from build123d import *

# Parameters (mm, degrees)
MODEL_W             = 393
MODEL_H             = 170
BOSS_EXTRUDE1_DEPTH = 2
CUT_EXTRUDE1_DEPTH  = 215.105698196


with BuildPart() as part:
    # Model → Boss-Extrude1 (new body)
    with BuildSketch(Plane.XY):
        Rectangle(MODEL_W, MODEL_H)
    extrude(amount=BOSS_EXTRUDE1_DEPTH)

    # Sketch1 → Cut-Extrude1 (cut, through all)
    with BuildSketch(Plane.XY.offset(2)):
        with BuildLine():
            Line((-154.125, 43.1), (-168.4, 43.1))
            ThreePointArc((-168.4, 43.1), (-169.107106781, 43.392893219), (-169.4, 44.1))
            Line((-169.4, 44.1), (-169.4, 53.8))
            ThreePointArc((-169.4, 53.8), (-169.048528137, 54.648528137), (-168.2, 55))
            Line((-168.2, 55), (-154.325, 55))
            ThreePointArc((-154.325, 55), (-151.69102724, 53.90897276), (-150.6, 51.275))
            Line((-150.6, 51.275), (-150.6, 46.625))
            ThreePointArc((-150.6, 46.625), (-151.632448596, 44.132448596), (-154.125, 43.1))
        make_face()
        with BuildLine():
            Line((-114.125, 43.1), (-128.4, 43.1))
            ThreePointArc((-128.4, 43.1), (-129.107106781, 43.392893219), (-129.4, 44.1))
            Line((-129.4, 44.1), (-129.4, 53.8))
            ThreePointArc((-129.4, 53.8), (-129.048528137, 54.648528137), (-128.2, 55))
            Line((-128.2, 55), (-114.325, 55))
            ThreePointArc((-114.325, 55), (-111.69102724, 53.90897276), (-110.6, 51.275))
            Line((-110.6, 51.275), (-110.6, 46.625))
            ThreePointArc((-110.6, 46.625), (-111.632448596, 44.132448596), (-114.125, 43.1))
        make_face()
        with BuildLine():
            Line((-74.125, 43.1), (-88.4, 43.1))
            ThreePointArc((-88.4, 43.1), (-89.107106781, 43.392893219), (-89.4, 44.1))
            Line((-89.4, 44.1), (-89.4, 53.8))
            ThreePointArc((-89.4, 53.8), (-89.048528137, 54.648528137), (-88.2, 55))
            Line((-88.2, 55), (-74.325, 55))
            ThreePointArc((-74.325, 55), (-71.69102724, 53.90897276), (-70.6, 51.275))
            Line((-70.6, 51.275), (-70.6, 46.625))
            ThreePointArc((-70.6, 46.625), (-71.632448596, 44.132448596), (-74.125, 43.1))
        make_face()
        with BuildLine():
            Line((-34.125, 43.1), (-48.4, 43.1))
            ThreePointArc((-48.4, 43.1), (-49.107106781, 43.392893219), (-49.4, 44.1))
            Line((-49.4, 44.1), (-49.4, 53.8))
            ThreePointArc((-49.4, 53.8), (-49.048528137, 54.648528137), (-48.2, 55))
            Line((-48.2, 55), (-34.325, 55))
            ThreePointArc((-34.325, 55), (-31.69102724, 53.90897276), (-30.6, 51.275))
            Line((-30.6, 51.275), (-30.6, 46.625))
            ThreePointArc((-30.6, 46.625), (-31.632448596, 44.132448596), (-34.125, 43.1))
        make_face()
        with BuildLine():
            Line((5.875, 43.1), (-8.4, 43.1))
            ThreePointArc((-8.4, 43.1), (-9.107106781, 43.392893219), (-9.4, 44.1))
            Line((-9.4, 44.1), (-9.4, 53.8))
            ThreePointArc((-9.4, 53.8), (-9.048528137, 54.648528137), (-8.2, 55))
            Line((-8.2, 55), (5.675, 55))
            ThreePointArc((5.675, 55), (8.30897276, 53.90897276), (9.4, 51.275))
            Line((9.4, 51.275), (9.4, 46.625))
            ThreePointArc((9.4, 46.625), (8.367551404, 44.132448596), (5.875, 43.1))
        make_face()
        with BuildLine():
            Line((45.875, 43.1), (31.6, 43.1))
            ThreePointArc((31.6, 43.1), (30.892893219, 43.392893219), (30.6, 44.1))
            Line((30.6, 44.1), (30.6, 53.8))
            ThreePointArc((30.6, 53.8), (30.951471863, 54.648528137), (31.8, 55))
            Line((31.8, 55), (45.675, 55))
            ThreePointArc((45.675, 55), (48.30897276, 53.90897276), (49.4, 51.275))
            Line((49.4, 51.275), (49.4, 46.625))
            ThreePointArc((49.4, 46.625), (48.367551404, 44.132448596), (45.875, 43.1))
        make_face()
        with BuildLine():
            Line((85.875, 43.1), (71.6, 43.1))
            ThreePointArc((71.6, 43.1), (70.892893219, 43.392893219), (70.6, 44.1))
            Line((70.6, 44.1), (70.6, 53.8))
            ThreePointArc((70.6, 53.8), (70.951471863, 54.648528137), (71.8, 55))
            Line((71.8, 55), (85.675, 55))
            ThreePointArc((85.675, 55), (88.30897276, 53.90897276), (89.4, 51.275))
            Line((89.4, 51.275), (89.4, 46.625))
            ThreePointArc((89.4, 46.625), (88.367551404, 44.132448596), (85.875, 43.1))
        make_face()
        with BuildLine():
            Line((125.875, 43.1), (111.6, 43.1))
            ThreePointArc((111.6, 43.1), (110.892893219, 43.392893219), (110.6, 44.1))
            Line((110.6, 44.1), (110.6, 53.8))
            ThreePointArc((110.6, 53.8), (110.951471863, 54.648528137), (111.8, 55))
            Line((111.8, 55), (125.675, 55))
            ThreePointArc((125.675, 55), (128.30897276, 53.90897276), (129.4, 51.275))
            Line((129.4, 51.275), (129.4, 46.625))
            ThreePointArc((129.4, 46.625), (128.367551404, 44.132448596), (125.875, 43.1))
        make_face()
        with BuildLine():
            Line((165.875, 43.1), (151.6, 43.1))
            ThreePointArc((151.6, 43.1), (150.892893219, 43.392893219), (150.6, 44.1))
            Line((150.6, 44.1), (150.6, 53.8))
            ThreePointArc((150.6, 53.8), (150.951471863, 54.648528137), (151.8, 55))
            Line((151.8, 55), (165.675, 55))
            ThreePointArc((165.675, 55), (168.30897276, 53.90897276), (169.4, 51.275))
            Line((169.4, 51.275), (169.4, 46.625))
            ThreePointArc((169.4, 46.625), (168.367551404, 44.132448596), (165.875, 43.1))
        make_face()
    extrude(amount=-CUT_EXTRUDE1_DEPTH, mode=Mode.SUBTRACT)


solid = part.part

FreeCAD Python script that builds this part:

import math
import FreeCAD as App
import Part
import Sketcher

V = App.Vector
Q = App.Units.Quantity

doc = App.newDocument("Part")
body = doc.addObject("PartDesign::Body", "Body")

sketch1 = body.newObject("Sketcher::SketchObject", "Sketch")
sketch1.AttachmentSupport = (doc.getObject("XY_Plane"), [""])
sketch1.MapMode = "FlatFace"
sketch1.addGeometry([
    Part.LineSegment(V(-196.5, 85, 0), V(-196.5, -85, 0)),
    Part.LineSegment(V(-196.5, -85, 0), V(196.5, -85, 0)),
    Part.LineSegment(V(196.5, -85, 0), V(196.5, 85, 0)),
    Part.LineSegment(V(196.5, 85, 0), V(-196.5, 85, 0)),
], False)
sketch1.addConstraint([
    Sketcher.Constraint("Coincident", 0, 2, 1, 1),
    Sketcher.Constraint("Coincident", 1, 2, 2, 1),
    Sketcher.Constraint("Coincident", 2, 2, 3, 1),
    Sketcher.Constraint("Coincident", 3, 2, 0, 1),
    Sketcher.Constraint("Vertical", 0),
    Sketcher.Constraint("Horizontal", 1),
    Sketcher.Constraint("Vertical", 2),
    Sketcher.Constraint("Horizontal", 3),
    Sketcher.Constraint("Symmetric", 0, 2, 2, 2, -1, 1),
    Sketcher.Constraint("DistanceX", 1, 1, 1, 2, Q("393 mm")),
    Sketcher.Constraint("DistanceY", 0, 2, 0, 1, Q("170 mm")),
])
pad1 = body.newObject("PartDesign::Pad", "Pad")
pad1.Profile = sketch1
pad1.Length = 2

sketch2 = body.newObject("Sketcher::SketchObject", "Sketch001")
sketch2.AttachmentSupport = (doc.getObject("XY_Plane"), [""])
sketch2.MapMode = "FlatFace"
sketch2.AttachmentOffset = App.Placement(V(0, 0, 2), App.Rotation())
sketch2.addGeometry([
    Part.LineSegment(V(-168.4, 43.1, 0), V(-154.125, 43.1, 0)),
    Part.ArcOfCircle(Part.Circle(V(-154.125, 46.625, 0), V(0, 0, 1), 3.525), math.radians(-90), math.radians(0)),
    Part.LineSegment(V(-150.6, 46.625, 0), V(-150.6, 51.275, 0)),
    Part.ArcOfCircle(Part.Circle(V(-154.325, 51.275, 0), V(0, 0, 1), 3.725), math.radians(0), math.radians(90)),
    Part.LineSegment(V(-154.325, 55, 0), V(-168.2, 55, 0)),
    Part.ArcOfCircle(Part.Circle(V(-168.2, 53.8, 0), V(0, 0, 1), 1.2), math.radians(90), math.radians(180)),
    Part.LineSegment(V(-169.4, 53.8, 0), V(-169.4, 44.1, 0)),
    Part.ArcOfCircle(Part.Circle(V(-168.4, 44.1, 0), V(0, 0, 1), 1), math.radians(-180), math.radians(-90)),
    Part.LineSegment(V(-128.4, 43.1, 0), V(-114.125, 43.1, 0)),
    Part.ArcOfCircle(Part.Circle(V(-114.125, 46.625, 0), V(0, 0, 1), 3.525), math.radians(-90), math.radians(0)),
    Part.LineSegment(V(-110.6, 46.625, 0), V(-110.6, 51.275, 0)),
    Part.ArcOfCircle(Part.Circle(V(-114.325, 51.275, 0), V(0, 0, 1), 3.725), math.radians(0), math.radians(90)),
    Part.LineSegment(V(-114.325, 55, 0), V(-128.2, 55, 0)),
    Part.ArcOfCircle(Part.Circle(V(-128.2, 53.8, 0), V(0, 0, 1), 1.2), math.radians(90), math.radians(180)),
    Part.LineSegment(V(-129.4, 53.8, 0), V(-129.4, 44.1, 0)),
    Part.ArcOfCircle(Part.Circle(V(-128.4, 44.1, 0), V(0, 0, 1), 1), math.radians(-180), math.radians(-90)),
    Part.LineSegment(V(-88.4, 43.1, 0), V(-74.125, 43.1, 0)),
    Part.ArcOfCircle(Part.Circle(V(-74.125, 46.625, 0), V(0, 0, 1), 3.525), math.radians(-90), math.radians(0)),
    Part.LineSegment(V(-70.6, 46.625, 0), V(-70.6, 51.275, 0)),
    Part.ArcOfCircle(Part.Circle(V(-74.325, 51.275, 0), V(0, 0, 1), 3.725), math.radians(0), math.radians(90)),
    Part.LineSegment(V(-74.325, 55, 0), V(-88.2, 55, 0)),
    Part.ArcOfCircle(Part.Circle(V(-88.2, 53.8, 0), V(0, 0, 1), 1.2), math.radians(90), math.radians(180)),
    Part.LineSegment(V(-89.4, 53.8, 0), V(-89.4, 44.1, 0)),
    Part.ArcOfCircle(Part.Circle(V(-88.4, 44.1, 0), V(0, 0, 1), 1), math.radians(-180), math.radians(-90)),
    Part.LineSegment(V(-48.4, 43.1, 0), V(-34.125, 43.1, 0)),
    Part.ArcOfCircle(Part.Circle(V(-34.125, 46.625, 0), V(0, 0, 1), 3.525), math.radians(-90), math.radians(0)),
    Part.LineSegment(V(-30.6, 46.625, 0), V(-30.6, 51.275, 0)),
    Part.ArcOfCircle(Part.Circle(V(-34.325, 51.275, 0), V(0, 0, 1), 3.725), math.radians(0), math.radians(90)),
    Part.LineSegment(V(-34.325, 55, 0), V(-48.2, 55, 0)),
    Part.ArcOfCircle(Part.Circle(V(-48.2, 53.8, 0), V(0, 0, 1), 1.2), math.radians(90), math.radians(180)),
    Part.LineSegment(V(-49.4, 53.8, 0), V(-49.4, 44.1, 0)),
    Part.ArcOfCircle(Part.Circle(V(-48.4, 44.1, 0), V(0, 0, 1), 1), math.radians(-180), math.radians(-90)),
    Part.LineSegment(V(-8.4, 43.1, 0), V(5.875, 43.1, 0)),
    Part.ArcOfCircle(Part.Circle(V(5.875, 46.625, 0), V(0, 0, 1), 3.525), math.radians(-90), math.radians(0)),
    Part.LineSegment(V(9.4, 46.625, 0), V(9.4, 51.275, 0)),
    Part.ArcOfCircle(Part.Circle(V(5.675, 51.275, 0), V(0, 0, 1), 3.725), math.radians(0), math.radians(90)),
    Part.LineSegment(V(5.675, 55, 0), V(-8.2, 55, 0)),
    Part.ArcOfCircle(Part.Circle(V(-8.2, 53.8, 0), V(0, 0, 1), 1.2), math.radians(90), math.radians(180)),
    Part.LineSegment(V(-9.4, 53.8, 0), V(-9.4, 44.1, 0)),
    Part.ArcOfCircle(Part.Circle(V(-8.4, 44.1, 0), V(0, 0, 1), 1), math.radians(-180), math.radians(-90)),
    Part.LineSegment(V(31.6, 43.1, 0), V(45.875, 43.1, 0)),
    Part.ArcOfCircle(Part.Circle(V(45.875, 46.625, 0), V(0, 0, 1), 3.525), math.radians(-90), math.radians(0)),
    Part.LineSegment(V(49.4, 46.625, 0), V(49.4, 51.275, 0)),
    Part.ArcOfCircle(Part.Circle(V(45.675, 51.275, 0), V(0, 0, 1), 3.725), math.radians(0), math.radians(90)),
    Part.LineSegment(V(45.675, 55, 0), V(31.8, 55, 0)),
    Part.ArcOfCircle(Part.Circle(V(31.8, 53.8, 0), V(0, 0, 1), 1.2), math.radians(90), math.radians(180)),
    Part.LineSegment(V(30.6, 53.8, 0), V(30.6, 44.1, 0)),
    Part.ArcOfCircle(Part.Circle(V(31.6, 44.1, 0), V(0, 0, 1), 1), math.radians(-180), math.radians(-90)),
    Part.LineSegment(V(71.6, 43.1, 0), V(85.875, 43.1, 0)),
    Part.ArcOfCircle(Part.Circle(V(85.875, 46.625, 0), V(0, 0, 1), 3.525), math.radians(-90), math.radians(0)),
    Part.LineSegment(V(89.4, 46.625, 0), V(89.4, 51.275, 0)),
    Part.ArcOfCircle(Part.Circle(V(85.675, 51.275, 0), V(0, 0, 1), 3.725), math.radians(0), math.radians(90)),
    Part.LineSegment(V(85.675, 55, 0), V(71.8, 55, 0)),
    Part.ArcOfCircle(Part.Circle(V(71.8, 53.8, 0), V(0, 0, 1), 1.2), math.radians(90), math.radians(180)),
    Part.LineSegment(V(70.6, 53.8, 0), V(70.6, 44.1, 0)),
    Part.ArcOfCircle(Part.Circle(V(71.6, 44.1, 0), V(0, 0, 1), 1), math.radians(-180), math.radians(-90)),
    Part.LineSegment(V(111.6, 43.1, 0), V(125.875, 43.1, 0)),
    Part.ArcOfCircle(Part.Circle(V(125.875, 46.625, 0), V(0, 0, 1), 3.525), math.radians(-90), math.radians(0)),
    Part.LineSegment(V(129.4, 46.625, 0), V(129.4, 51.275, 0)),
    Part.ArcOfCircle(Part.Circle(V(125.675, 51.275, 0), V(0, 0, 1), 3.725), math.radians(0), math.radians(90)),
    Part.LineSegment(V(125.675, 55, 0), V(111.8, 55, 0)),
    Part.ArcOfCircle(Part.Circle(V(111.8, 53.8, 0), V(0, 0, 1), 1.2), math.radians(90), math.radians(180)),
    Part.LineSegment(V(110.6, 53.8, 0), V(110.6, 44.1, 0)),
    Part.ArcOfCircle(Part.Circle(V(111.6, 44.1, 0), V(0, 0, 1), 1), math.radians(-180), math.radians(-90)),
    Part.LineSegment(V(151.6, 43.1, 0), V(165.875, 43.1, 0)),
    Part.ArcOfCircle(Part.Circle(V(165.875, 46.625, 0), V(0, 0, 1), 3.525), math.radians(-90), math.radians(0)),
    Part.LineSegment(V(169.4, 46.625, 0), V(169.4, 51.275, 0)),
    Part.ArcOfCircle(Part.Circle(V(165.675, 51.275, 0), V(0, 0, 1), 3.725), math.radians(0), math.radians(90)),
    Part.LineSegment(V(165.675, 55, 0), V(151.8, 55, 0)),
    Part.ArcOfCircle(Part.Circle(V(151.8, 53.8, 0), V(0, 0, 1), 1.2), math.radians(90), math.radians(180)),
    Part.LineSegment(V(150.6, 53.8, 0), V(150.6, 44.1, 0)),
    Part.ArcOfCircle(Part.Circle(V(151.6, 44.1, 0), V(0, 0, 1), 1), math.radians(-180), math.radians(-90)),
], False)
sketch2.addConstraint([
    Sketcher.Constraint("Tangent", 0, 2, 1, 1),
    Sketcher.Constraint("Tangent", 1, 2, 2, 1),
    Sketcher.Constraint("Tangent", 2, 2, 3, 1),
    Sketcher.Constraint("Tangent", 3, 2, 4, 1),
    Sketcher.Constraint("Tangent", 4, 2, 5, 1),
    Sketcher.Constraint("Tangent", 5, 2, 6, 1),
    Sketcher.Constraint("Tangent", 6, 2, 7, 1),
    Sketcher.Constraint("Tangent", 7, 2, 0, 1),
    Sketcher.Constraint("Tangent", 8, 2, 9, 1),
    Sketcher.Constraint("Tangent", 9, 2, 10, 1),
    Sketcher.Constraint("Tangent", 10, 2, 11, 1),
    Sketcher.Constraint("Tangent", 11, 2, 12, 1),
    Sketcher.Constraint("Tangent", 12, 2, 13, 1),
    Sketcher.Constraint("Tangent", 13, 2, 14, 1),
    Sketcher.Constraint("Tangent", 14, 2, 15, 1),
    Sketcher.Constraint("Tangent", 15, 2, 8, 1),
    Sketcher.Constraint("Tangent", 16, 2, 17, 1),
    Sketcher.Constraint("Tangent", 17, 2, 18, 1),
    Sketcher.Constraint("Tangent", 18, 2, 19, 1),
    Sketcher.Constraint("Tangent", 19, 2, 20, 1),
    Sketcher.Constraint("Tangent", 20, 2, 21, 1),
    Sketcher.Constraint("Tangent", 21, 2, 22, 1),
    Sketcher.Constraint("Tangent", 22, 2, 23, 1),
    Sketcher.Constraint("Tangent", 23, 2, 16, 1),
    Sketcher.Constraint("Tangent", 24, 2, 25, 1),
    Sketcher.Constraint("Tangent", 25, 2, 26, 1),
    Sketcher.Constraint("Tangent", 26, 2, 27, 1),
    Sketcher.Constraint("Tangent", 27, 2, 28, 1),
    Sketcher.Constraint("Tangent", 28, 2, 29, 1),
    Sketcher.Constraint("Tangent", 29, 2, 30, 1),
    Sketcher.Constraint("Tangent", 30, 2, 31, 1),
    Sketcher.Constraint("Tangent", 31, 2, 24, 1),
    Sketcher.Constraint("Tangent", 32, 2, 33, 1),
    Sketcher.Constraint("Tangent", 33, 2, 34, 1),
    Sketcher.Constraint("Tangent", 34, 2, 35, 1),
    Sketcher.Constraint("Tangent", 35, 2, 36, 1),
    Sketcher.Constraint("Tangent", 36, 2, 37, 1),
    Sketcher.Constraint("Tangent", 37, 2, 38, 1),
    Sketcher.Constraint("Tangent", 38, 2, 39, 1),
    Sketcher.Constraint("Tangent", 39, 2, 32, 1),
    Sketcher.Constraint("Tangent", 40, 2, 41, 1),
    Sketcher.Constraint("Tangent", 41, 2, 42, 1),
    Sketcher.Constraint("Tangent", 42, 2, 43, 1),
    Sketcher.Constraint("Tangent", 43, 2, 44, 1),
    Sketcher.Constraint("Tangent", 44, 2, 45, 1),
    Sketcher.Constraint("Tangent", 45, 2, 46, 1),
    Sketcher.Constraint("Tangent", 46, 2, 47, 1),
    Sketcher.Constraint("Tangent", 47, 2, 40, 1),
    Sketcher.Constraint("Tangent", 48, 2, 49, 1),
    Sketcher.Constraint("Tangent", 49, 2, 50, 1),
    Sketcher.Constraint("Tangent", 50, 2, 51, 1),
    Sketcher.Constraint("Tangent", 51, 2, 52, 1),
    Sketcher.Constraint("Tangent", 52, 2, 53, 1),
    Sketcher.Constraint("Tangent", 53, 2, 54, 1),
    Sketcher.Constraint("Tangent", 54, 2, 55, 1),
    Sketcher.Constraint("Tangent", 55, 2, 48, 1),
    Sketcher.Constraint("Tangent", 56, 2, 57, 1),
    Sketcher.Constraint("Tangent", 57, 2, 58, 1),
    Sketcher.Constraint("Tangent", 58, 2, 59, 1),
    Sketcher.Constraint("Tangent", 59, 2, 60, 1),
    Sketcher.Constraint("Tangent", 60, 2, 61, 1),
    Sketcher.Constraint("Tangent", 61, 2, 62, 1),
    Sketcher.Constraint("Tangent", 62, 2, 63, 1),
    Sketcher.Constraint("Tangent", 63, 2, 56, 1),
    Sketcher.Constraint("Tangent", 64, 2, 65, 1),
    Sketcher.Constraint("Tangent", 65, 2, 66, 1),
    Sketcher.Constraint("Tangent", 66, 2, 67, 1),
    Sketcher.Constraint("Tangent", 67, 2, 68, 1),
    Sketcher.Constraint("Tangent", 68, 2, 69, 1),
    Sketcher.Constraint("Tangent", 69, 2, 70, 1),
    Sketcher.Constraint("Tangent", 70, 2, 71, 1),
    Sketcher.Constraint("Tangent", 71, 2, 64, 1),
    Sketcher.Constraint("Horizontal", 0),
    Sketcher.Constraint("Vertical", 2),
    Sketcher.Constraint("Horizontal", 4),
    Sketcher.Constraint("Vertical", 6),
    Sketcher.Constraint("Horizontal", 8),
    Sketcher.Constraint("Vertical", 10),
    Sketcher.Constraint("Horizontal", 12),
    Sketcher.Constraint("Vertical", 14),
    Sketcher.Constraint("Horizontal", 16),
    Sketcher.Constraint("Vertical", 18),
    Sketcher.Constraint("Horizontal", 20),
    Sketcher.Constraint("Vertical", 22),
    Sketcher.Constraint("Horizontal", 24),
    Sketcher.Constraint("Vertical", 26),
    Sketcher.Constraint("Horizontal", 28),
    Sketcher.Constraint("Vertical", 30),
    Sketcher.Constraint("Horizontal", 32),
    Sketcher.Constraint("Vertical", 34),
    Sketcher.Constraint("Horizontal", 36),
    Sketcher.Constraint("Vertical", 38),
    Sketcher.Constraint("Horizontal", 40),
    Sketcher.Constraint("Vertical", 42),
    Sketcher.Constraint("Horizontal", 44),
    Sketcher.Constraint("Vertical", 46),
    Sketcher.Constraint("Horizontal", 48),
    Sketcher.Constraint("Vertical", 50),
    Sketcher.Constraint("Horizontal", 52),
    Sketcher.Constraint("Vertical", 54),
    Sketcher.Constraint("Horizontal", 56),
    Sketcher.Constraint("Vertical", 58),
    Sketcher.Constraint("Horizontal", 60),
    Sketcher.Constraint("Vertical", 62),
    Sketcher.Constraint("Horizontal", 64),
    Sketcher.Constraint("Vertical", 66),
    Sketcher.Constraint("Horizontal", 68),
    Sketcher.Constraint("Vertical", 70),
    Sketcher.Constraint("Equal", 1, 9),
    Sketcher.Constraint("Equal", 3, 11),
    Sketcher.Constraint("Equal", 5, 13),
    Sketcher.Constraint("Equal", 7, 15),
    Sketcher.Constraint("Equal", 9, 17),
    Sketcher.Constraint("Equal", 11, 19),
    Sketcher.Constraint("Equal", 13, 21),
    Sketcher.Constraint("Equal", 15, 23),
    Sketcher.Constraint("Equal", 17, 25),
    Sketcher.Constraint("Equal", 19, 27),
    Sketcher.Constraint("Equal", 21, 29),
    Sketcher.Constraint("Equal", 23, 31),
    Sketcher.Constraint("Equal", 25, 33),
    Sketcher.Constraint("Equal", 27, 35),
    Sketcher.Constraint("Equal", 29, 37),
    Sketcher.Constraint("Equal", 31, 39),
    Sketcher.Constraint("Equal", 33, 41),
    Sketcher.Constraint("Equal", 35, 43),
    Sketcher.Constraint("Equal", 37, 45),
    Sketcher.Constraint("Equal", 39, 47),
    Sketcher.Constraint("Equal", 41, 49),
    Sketcher.Constraint("Equal", 43, 51),
    Sketcher.Constraint("Equal", 45, 53),
    Sketcher.Constraint("Equal", 47, 55),
    Sketcher.Constraint("Equal", 49, 57),
    Sketcher.Constraint("Equal", 51, 59),
    Sketcher.Constraint("Equal", 53, 61),
    Sketcher.Constraint("Equal", 55, 63),
    Sketcher.Constraint("Equal", 57, 65),
    Sketcher.Constraint("Equal", 59, 67),
    Sketcher.Constraint("Equal", 61, 69),
    Sketcher.Constraint("Equal", 63, 71),
    Sketcher.Constraint("Horizontal", 1, 3, 9, 3),
    Sketcher.Constraint("Horizontal", 3, 3, 11, 3),
    Sketcher.Constraint("Horizontal", 9, 3, 17, 3),
    Sketcher.Constraint("Horizontal", 11, 3, 19, 3),
    Sketcher.Constraint("Horizontal", 17, 3, 25, 3),
    Sketcher.Constraint("Horizontal", 19, 3, 27, 3),
    Sketcher.Constraint("Horizontal", 25, 3, 33, 3),
    Sketcher.Constraint("Horizontal", 27, 3, 35, 3),
    Sketcher.Constraint("Horizontal", 33, 3, 41, 3),
    Sketcher.Constraint("Horizontal", 35, 3, 43, 3),
    Sketcher.Constraint("Horizontal", 41, 3, 49, 3),
    Sketcher.Constraint("Horizontal", 43, 3, 51, 3),
    Sketcher.Constraint("Horizontal", 49, 3, 57, 3),
    Sketcher.Constraint("Horizontal", 51, 3, 59, 3),
    Sketcher.Constraint("Horizontal", 57, 3, 65, 3),
    Sketcher.Constraint("Horizontal", 59, 3, 67, 3),
    Sketcher.Constraint("Equal", 0, 8),
    Sketcher.Constraint("Equal", 8, 16),
    Sketcher.Constraint("Equal", 16, 24),
    Sketcher.Constraint("Equal", 24, 32),
    Sketcher.Constraint("Equal", 32, 40),
    Sketcher.Constraint("Equal", 40, 48),
    Sketcher.Constraint("Equal", 48, 56),
    Sketcher.Constraint("Equal", 56, 64),
    Sketcher.Constraint("Radius", 7, Q("1 mm")),
    Sketcher.Constraint("Radius", 5, Q("1.2 mm")),
    Sketcher.Constraint("DistanceY", 6, 2, 6, 1, Q("9.7 mm")),
    Sketcher.Constraint("DistanceY", -1, 1, 3, 2, Q("55 mm")),
    Sketcher.Constraint("Radius", 1, Q("3.525 mm")),
    Sketcher.Constraint("Radius", 3, Q("3.725 mm")),
    Sketcher.Constraint("DistanceX", 5, 3, -1, 1, Q("168.2 mm")),
    Sketcher.Constraint("DistanceX", 13, 3, -1, 1, Q("128.2 mm")),
    Sketcher.Constraint("DistanceX", 21, 3, -1, 1, Q("88.2 mm")),
    Sketcher.Constraint("DistanceX", 29, 3, -1, 1, Q("48.2 mm")),
    Sketcher.Constraint("DistanceX", 37, 3, -1, 1, Q("8.2 mm")),
    Sketcher.Constraint("DistanceX", -1, 1, 45, 3, Q("31.8 mm")),
    Sketcher.Constraint("DistanceX", -1, 1, 53, 3, Q("71.8 mm")),
    Sketcher.Constraint("DistanceX", -1, 1, 61, 3, Q("111.8 mm")),
    Sketcher.Constraint("DistanceX", -1, 1, 69, 3, Q("151.8 mm")),
    Sketcher.Constraint("DistanceX", 1, 2, -1, 1, Q("150.6 mm")),
])
pocket1 = body.newObject("PartDesign::Pocket", "Pocket")
pocket1.Profile = sketch2
pocket1.Type = "ThroughAll"

doc.recompute()
